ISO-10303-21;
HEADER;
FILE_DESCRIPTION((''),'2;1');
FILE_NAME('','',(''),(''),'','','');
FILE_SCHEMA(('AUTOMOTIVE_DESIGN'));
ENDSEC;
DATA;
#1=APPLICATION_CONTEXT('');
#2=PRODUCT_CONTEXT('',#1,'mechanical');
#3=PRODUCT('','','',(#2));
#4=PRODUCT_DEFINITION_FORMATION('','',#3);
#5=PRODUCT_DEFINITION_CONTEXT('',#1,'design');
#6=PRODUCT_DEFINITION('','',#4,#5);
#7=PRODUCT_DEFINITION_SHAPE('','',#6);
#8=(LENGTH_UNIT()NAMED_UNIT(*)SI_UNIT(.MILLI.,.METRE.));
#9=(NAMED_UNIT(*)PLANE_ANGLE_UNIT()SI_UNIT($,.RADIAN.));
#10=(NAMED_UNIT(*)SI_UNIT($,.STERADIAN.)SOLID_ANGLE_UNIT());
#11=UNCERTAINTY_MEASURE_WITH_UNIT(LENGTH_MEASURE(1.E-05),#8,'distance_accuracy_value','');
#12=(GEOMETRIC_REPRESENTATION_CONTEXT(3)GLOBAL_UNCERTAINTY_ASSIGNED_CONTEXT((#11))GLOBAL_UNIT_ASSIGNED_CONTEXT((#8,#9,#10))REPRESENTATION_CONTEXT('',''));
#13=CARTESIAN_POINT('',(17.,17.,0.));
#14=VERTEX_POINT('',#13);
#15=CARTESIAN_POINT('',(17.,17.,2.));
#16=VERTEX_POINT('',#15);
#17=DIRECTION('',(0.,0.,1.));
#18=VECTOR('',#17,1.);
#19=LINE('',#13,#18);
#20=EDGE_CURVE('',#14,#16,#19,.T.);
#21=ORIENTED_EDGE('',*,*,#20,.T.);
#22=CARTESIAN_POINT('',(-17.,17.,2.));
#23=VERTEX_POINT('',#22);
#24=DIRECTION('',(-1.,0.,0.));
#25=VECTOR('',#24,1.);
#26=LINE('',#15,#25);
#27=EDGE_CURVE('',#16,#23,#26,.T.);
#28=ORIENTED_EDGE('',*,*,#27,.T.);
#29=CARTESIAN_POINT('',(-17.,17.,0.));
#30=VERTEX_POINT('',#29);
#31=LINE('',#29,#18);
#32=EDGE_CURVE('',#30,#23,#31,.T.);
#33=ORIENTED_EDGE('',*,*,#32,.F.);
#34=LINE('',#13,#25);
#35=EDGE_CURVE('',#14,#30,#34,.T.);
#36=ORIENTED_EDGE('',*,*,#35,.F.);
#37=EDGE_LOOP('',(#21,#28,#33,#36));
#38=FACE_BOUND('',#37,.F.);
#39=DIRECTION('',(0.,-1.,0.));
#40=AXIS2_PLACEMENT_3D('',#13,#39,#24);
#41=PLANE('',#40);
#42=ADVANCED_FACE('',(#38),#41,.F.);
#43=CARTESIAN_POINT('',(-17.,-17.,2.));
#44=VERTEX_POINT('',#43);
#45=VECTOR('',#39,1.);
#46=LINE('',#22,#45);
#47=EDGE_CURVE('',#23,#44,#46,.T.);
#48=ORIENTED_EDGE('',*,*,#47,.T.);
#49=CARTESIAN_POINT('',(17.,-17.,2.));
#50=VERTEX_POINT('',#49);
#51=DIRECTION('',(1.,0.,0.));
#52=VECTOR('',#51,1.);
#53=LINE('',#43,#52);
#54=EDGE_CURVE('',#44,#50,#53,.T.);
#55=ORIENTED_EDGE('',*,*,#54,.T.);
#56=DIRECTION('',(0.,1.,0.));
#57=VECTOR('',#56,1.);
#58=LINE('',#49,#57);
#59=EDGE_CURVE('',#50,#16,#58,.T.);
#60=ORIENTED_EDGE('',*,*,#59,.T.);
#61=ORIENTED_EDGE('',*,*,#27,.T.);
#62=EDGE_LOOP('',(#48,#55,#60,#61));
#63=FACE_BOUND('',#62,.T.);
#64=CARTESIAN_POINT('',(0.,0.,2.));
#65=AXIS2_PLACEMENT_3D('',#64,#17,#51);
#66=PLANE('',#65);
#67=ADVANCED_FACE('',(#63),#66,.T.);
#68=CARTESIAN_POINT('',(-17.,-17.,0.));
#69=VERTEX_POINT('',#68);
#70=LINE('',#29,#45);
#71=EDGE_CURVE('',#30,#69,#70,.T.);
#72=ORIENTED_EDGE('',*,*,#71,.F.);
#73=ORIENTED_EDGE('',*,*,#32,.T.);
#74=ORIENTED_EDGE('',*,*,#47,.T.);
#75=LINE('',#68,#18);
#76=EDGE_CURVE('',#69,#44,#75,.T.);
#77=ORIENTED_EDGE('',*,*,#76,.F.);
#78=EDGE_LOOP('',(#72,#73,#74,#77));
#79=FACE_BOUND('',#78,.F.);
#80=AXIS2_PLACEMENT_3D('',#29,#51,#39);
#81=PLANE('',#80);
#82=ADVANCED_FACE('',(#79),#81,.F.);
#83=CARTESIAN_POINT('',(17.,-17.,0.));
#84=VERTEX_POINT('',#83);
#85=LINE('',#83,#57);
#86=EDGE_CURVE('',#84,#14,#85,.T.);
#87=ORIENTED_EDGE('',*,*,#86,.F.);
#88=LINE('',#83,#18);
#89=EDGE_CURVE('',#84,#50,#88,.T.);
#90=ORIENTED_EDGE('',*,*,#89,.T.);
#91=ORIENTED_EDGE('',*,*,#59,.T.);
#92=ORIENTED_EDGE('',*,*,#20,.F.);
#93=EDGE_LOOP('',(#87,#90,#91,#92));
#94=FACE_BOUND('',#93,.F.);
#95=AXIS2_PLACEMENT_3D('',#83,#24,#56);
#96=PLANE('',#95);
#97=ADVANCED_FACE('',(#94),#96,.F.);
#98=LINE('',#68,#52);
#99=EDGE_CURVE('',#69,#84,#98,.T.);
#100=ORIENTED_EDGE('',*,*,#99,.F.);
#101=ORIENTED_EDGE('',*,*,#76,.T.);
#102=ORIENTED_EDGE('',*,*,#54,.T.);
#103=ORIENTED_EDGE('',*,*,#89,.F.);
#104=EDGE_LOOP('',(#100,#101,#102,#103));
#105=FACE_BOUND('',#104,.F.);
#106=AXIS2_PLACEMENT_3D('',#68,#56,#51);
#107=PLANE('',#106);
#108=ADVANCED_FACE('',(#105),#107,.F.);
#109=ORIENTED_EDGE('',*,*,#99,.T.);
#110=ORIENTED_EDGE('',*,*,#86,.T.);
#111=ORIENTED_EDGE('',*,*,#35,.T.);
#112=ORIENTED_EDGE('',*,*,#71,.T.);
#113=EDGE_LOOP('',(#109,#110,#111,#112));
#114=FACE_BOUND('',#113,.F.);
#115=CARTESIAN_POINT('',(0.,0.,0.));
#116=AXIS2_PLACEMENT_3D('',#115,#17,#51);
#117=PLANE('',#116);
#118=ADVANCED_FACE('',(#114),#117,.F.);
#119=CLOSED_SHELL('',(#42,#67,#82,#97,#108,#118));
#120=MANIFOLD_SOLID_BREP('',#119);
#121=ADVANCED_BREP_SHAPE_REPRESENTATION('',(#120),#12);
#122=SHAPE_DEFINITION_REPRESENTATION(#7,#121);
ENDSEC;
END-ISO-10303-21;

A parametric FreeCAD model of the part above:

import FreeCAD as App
import Part
import Sketcher


def add_polygon(sketch, points):
    """Adds a closed chain of lines whose ends are joined by coincident constraints."""
    first, n = sketch.GeometryCount, len(points)
    for a, b in zip(points, points[1:] + points[:1]):
        sketch.addGeometry(Part.LineSegment(App.Vector(*a, 0), App.Vector(*b, 0)), False)
    for i in range(n):
        sketch.addConstraint(Sketcher.Constraint("Coincident", first + i, 2, first + (i + 1) % n, 1))

doc = App.newDocument("Part")
body = doc.addObject("PartDesign::Body", "Body")

# Sketch on XY plane
sketch1 = body.newObject("Sketcher::SketchObject", "Sketch")
sketch1.AttachmentSupport = (doc.getObject("XY_Plane"), [""])
sketch1.MapMode = "FlatFace"
add_polygon(sketch1, [(-17, 17), (-17, -17), (17, -17), (17, 17)])  # lines 0-3
sketch1.addConstraint([
    Sketcher.Constraint("Vertical", 0),
    Sketcher.Constraint("Horizontal", 1),
    Sketcher.Constraint("Vertical", 2),
    Sketcher.Constraint("Horizontal", 3),
    Sketcher.Constraint("Symmetric", 0, 2, 2, 2, -1, 1),
    Sketcher.Constraint("Equal", 3, 0),
    Sketcher.Constraint("DistanceX", 1, 1, 1, 2, 34.0),
])
pad1 = body.newObject("PartDesign::Pad", "Pad")
pad1.Profile = sketch1
pad1.Length = 2

doc.recompute()
